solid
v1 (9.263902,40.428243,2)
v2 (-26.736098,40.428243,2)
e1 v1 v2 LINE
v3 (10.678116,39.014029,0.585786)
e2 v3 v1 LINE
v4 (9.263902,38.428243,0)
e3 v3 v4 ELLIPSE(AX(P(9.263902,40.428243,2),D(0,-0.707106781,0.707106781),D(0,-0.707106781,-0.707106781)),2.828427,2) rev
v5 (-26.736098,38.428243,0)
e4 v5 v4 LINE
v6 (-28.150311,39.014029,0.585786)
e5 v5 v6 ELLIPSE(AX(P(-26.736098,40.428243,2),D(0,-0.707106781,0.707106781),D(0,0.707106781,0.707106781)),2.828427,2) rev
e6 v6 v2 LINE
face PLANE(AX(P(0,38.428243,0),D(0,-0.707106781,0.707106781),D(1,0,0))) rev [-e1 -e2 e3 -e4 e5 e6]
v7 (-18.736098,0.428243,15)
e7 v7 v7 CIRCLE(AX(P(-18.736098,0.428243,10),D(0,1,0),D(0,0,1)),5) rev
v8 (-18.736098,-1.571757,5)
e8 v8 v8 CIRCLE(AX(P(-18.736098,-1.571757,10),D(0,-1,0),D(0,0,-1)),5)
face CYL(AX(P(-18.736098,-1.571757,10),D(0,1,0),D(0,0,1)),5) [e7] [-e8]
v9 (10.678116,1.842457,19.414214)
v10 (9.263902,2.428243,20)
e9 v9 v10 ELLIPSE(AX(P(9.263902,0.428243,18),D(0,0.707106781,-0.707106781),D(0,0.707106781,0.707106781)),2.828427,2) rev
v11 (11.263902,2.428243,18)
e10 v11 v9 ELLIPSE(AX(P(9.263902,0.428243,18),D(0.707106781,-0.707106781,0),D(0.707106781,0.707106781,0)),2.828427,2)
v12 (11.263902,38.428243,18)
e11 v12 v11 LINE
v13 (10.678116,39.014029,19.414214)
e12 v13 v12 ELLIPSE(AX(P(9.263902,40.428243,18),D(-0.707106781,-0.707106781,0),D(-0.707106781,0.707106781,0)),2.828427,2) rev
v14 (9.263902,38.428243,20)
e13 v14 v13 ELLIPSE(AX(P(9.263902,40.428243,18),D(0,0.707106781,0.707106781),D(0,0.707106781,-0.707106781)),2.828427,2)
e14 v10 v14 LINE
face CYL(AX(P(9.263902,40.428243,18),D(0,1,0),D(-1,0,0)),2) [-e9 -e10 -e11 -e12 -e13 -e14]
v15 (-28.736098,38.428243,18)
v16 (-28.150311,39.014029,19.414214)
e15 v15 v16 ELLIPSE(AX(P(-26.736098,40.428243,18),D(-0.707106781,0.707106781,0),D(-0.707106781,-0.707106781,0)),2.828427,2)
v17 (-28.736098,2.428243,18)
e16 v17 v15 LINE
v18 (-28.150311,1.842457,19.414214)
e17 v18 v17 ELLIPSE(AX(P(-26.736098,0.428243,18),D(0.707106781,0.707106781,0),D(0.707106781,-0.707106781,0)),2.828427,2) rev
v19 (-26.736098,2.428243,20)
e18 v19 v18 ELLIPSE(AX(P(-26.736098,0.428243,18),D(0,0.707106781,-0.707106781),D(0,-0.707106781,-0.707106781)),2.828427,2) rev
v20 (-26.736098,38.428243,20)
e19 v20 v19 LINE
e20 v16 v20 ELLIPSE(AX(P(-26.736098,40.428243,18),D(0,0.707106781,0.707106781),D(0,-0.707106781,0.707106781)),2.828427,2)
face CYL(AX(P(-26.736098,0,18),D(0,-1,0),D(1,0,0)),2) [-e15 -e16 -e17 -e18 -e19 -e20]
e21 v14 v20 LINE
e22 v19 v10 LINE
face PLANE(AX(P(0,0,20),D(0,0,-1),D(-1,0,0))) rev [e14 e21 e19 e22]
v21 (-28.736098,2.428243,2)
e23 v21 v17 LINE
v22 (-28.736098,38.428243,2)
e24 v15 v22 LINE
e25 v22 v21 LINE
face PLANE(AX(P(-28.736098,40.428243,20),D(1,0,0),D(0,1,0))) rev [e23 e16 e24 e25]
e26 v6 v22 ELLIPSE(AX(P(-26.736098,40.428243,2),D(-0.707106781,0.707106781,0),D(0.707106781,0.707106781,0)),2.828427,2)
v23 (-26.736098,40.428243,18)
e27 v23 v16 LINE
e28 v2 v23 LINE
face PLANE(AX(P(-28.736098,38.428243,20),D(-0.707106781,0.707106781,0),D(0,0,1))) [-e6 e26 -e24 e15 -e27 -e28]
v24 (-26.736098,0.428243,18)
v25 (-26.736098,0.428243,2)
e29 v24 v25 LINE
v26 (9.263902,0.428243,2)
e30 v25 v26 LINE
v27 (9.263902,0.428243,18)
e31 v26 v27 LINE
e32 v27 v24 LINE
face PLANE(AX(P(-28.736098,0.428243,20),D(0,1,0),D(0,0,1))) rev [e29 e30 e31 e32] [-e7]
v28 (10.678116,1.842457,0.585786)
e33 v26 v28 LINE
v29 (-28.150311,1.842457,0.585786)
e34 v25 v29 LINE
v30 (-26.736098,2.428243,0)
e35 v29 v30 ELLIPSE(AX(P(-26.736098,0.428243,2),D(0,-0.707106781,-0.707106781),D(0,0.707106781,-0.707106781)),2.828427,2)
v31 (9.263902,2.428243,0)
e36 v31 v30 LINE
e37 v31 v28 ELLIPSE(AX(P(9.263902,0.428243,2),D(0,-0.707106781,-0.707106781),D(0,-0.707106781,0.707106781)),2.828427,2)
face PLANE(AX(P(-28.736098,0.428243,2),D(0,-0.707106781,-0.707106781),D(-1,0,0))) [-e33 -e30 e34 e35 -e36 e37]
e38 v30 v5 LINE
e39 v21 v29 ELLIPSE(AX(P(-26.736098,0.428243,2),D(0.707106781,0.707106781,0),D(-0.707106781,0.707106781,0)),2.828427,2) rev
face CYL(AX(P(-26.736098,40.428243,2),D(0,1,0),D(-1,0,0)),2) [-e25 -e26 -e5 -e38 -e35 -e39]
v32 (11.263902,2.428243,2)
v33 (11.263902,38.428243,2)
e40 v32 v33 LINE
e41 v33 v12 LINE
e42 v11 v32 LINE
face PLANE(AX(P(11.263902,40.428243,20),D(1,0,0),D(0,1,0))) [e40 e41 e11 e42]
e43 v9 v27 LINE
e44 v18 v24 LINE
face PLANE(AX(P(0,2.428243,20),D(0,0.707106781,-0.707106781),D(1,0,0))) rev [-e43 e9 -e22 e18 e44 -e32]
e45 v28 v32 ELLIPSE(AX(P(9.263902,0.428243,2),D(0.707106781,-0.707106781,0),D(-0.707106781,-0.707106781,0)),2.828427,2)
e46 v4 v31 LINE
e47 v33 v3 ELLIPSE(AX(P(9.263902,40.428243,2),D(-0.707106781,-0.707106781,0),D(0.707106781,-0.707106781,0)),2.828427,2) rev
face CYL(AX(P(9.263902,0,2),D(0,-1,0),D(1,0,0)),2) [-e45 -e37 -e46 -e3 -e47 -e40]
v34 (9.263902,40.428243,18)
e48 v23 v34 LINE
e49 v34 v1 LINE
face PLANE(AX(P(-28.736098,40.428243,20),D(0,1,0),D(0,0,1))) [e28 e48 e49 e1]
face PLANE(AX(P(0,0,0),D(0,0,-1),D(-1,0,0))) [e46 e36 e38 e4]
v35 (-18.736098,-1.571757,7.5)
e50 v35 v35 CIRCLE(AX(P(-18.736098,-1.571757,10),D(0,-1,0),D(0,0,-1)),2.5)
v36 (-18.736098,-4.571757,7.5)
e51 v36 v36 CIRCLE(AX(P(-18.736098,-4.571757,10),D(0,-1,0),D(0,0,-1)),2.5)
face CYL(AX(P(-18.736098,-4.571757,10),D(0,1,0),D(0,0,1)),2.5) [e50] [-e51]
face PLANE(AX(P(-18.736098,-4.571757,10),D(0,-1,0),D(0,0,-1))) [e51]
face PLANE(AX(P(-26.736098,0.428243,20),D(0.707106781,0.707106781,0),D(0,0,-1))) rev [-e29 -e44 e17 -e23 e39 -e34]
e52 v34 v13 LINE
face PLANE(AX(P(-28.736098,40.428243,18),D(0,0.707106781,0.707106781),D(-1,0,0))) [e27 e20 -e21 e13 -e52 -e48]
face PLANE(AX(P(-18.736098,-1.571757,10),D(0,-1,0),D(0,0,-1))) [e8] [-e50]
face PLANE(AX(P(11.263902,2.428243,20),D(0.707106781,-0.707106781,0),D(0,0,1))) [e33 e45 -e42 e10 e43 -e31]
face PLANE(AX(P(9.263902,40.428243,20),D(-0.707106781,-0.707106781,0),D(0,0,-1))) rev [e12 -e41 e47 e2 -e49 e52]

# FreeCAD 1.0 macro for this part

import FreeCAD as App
import Part
import Sketcher
from FreeCAD import Vector


def edges_at(feature, points):
    """Names of the edges that pass closest to the given points."""
    edges = feature.Shape.Edges
    near = lambda p: min(range(len(edges)), key=lambda i: edges[i].distToShape(Part.Vertex(*p))[0])
    return sorted({f"Edge{near(p) + 1}" for p in points})


def add_polygon(sketch, points):
    """Adds a closed chain of lines whose ends are joined by coincident constraints."""
    first, n = sketch.GeometryCount, len(points)
    for a, b in zip(points, points[1:] + points[:1]):
        sketch.addGeometry(Part.LineSegment(App.Vector(*a, 0), App.Vector(*b, 0)), False)
    for i in range(n):
        sketch.addConstraint(Sketcher.Constraint("Coincident", first + i, 2, first + (i + 1) % n, 1))

doc = App.newDocument("Part")
body = doc.addObject("PartDesign::Body", "Body")

sketch1 = doc.addObject("Sketcher::SketchObject", "Sketch")
body.addObject(sketch1)
sketch1.AttachmentSupport = (doc.XY_Plane, [""])
sketch1.MapMode = "FlatFace"
add_polygon(sketch1, [(-29, 40), (-29, 0), (11, 0), (11, 40)])
sketch1.addConstraint([
    Sketcher.Constraint("Vertical", 0),
    Sketcher.Constraint("Horizontal", 1),
    Sketcher.Constraint("Vertical", 2),
    Sketcher.Constraint("Horizontal", 3),
    Sketcher.Constraint("Equal", 3, 0),
    Sketcher.Constraint("DistanceX", 1, 1, 1, 2, 40.0),
    Sketcher.Constraint("DistanceX", 0, 2, -1, 1, 28.736098),
    Sketcher.Constraint("DistanceY", -1, 1, 0, 2, 0.428243),
])
pad1 = doc.addObject("PartDesign::Pad", "Pad")
body.addObject(pad1)
pad1.Profile = sketch1
pad1.Length = 20
doc.recompute()

chamfer = doc.addObject("PartDesign::Chamfer", "Chamfer")
body.addObject(chamfer)
chamfer.Base = (pad1, edges_at(pad1, [
    (-8.736, 40.428, 20),
    (-8.736, 40.428, 0),
    (-28.736, 40.428, 10),
    (11.264, 40.428, 10),
]))
chamfer.Size = 2

sketch2 = doc.addObject("Sketcher::SketchObject", "Sketch001")
body.addObject(sketch2)
sketch2.AttachmentSupport = (doc.XZ_Plane, [""])
sketch2.MapMode = "FlatFace"
sketch2.AttachmentOffset = App.Placement(Vector(0, 0, -0.428243), App.Rotation())
sketch2.addGeometry(Part.Circle(Vector(-19, 10, 0), Vector(0, 0, 1), 5), False)
sketch2.addConstraint([
    Sketcher.Constraint("Diameter", 0, 10.0),
    Sketcher.Constraint("DistanceY", -1, 1, 0, 3, 10.0),
    Sketcher.Constraint("DistanceX", 0, 3, -1, 1, 18.736098),
])
pad2 = doc.addObject("PartDesign::Pad", "Pad001")
body.addObject(pad2)
pad2.Profile = sketch2
pad2.Length = 2

sketch3 = doc.addObject("Sketcher::SketchObject", "Sketch002")
body.addObject(sketch3)
sketch3.AttachmentSupport = (doc.XZ_Plane, [""])
sketch3.MapMode = "FlatFace"
sketch3.AttachmentOffset = App.Placement(Vector(0, 0, 1.571757), App.Rotation())
sketch3.addGeometry(Part.Circle(Vector(-18.7, 10, 0), Vector(0, 0, 1), 2.5), False)
sketch3.addConstraint([
    Sketcher.Constraint("Diameter", 0, 5.0),
    Sketcher.Constraint("DistanceY", -1, 1, 0, 3, 10.0),
    Sketcher.Constraint("DistanceX", 0, 3, -1, 1, 18.736098),
])
pad3 = doc.addObject("PartDesign::Pad", "Pad002")
body.addObject(pad3)
pad3.Profile = sketch3
pad3.Length = 3
doc.recompute()

chamfer2 = doc.addObject("PartDesign::Chamfer", "Chamfer001")
body.addObject(chamfer2)
chamfer2.Base = (pad3, edges_at(pad3, [
    (-8.736, 0.428, 20),
    (-8.736, 0.428, 0),
    (-28.736, 0.428, 10),
    (11.264, 0.428, 10),
]))
chamfer2.Size = 2
doc.recompute()

fillet = doc.addObject("PartDesign::Fillet", "Fillet")
body.addObject(fillet)
fillet.Base = (chamfer2, edges_at(chamfer2, [
    (11.264, 20.428, 0),
    (11.264, 20.428, 20),
    (-28.736, 20.428, 0),
    (-28.736, 20.428, 20),
]))
fillet.Radius = 2

doc.recompute()
